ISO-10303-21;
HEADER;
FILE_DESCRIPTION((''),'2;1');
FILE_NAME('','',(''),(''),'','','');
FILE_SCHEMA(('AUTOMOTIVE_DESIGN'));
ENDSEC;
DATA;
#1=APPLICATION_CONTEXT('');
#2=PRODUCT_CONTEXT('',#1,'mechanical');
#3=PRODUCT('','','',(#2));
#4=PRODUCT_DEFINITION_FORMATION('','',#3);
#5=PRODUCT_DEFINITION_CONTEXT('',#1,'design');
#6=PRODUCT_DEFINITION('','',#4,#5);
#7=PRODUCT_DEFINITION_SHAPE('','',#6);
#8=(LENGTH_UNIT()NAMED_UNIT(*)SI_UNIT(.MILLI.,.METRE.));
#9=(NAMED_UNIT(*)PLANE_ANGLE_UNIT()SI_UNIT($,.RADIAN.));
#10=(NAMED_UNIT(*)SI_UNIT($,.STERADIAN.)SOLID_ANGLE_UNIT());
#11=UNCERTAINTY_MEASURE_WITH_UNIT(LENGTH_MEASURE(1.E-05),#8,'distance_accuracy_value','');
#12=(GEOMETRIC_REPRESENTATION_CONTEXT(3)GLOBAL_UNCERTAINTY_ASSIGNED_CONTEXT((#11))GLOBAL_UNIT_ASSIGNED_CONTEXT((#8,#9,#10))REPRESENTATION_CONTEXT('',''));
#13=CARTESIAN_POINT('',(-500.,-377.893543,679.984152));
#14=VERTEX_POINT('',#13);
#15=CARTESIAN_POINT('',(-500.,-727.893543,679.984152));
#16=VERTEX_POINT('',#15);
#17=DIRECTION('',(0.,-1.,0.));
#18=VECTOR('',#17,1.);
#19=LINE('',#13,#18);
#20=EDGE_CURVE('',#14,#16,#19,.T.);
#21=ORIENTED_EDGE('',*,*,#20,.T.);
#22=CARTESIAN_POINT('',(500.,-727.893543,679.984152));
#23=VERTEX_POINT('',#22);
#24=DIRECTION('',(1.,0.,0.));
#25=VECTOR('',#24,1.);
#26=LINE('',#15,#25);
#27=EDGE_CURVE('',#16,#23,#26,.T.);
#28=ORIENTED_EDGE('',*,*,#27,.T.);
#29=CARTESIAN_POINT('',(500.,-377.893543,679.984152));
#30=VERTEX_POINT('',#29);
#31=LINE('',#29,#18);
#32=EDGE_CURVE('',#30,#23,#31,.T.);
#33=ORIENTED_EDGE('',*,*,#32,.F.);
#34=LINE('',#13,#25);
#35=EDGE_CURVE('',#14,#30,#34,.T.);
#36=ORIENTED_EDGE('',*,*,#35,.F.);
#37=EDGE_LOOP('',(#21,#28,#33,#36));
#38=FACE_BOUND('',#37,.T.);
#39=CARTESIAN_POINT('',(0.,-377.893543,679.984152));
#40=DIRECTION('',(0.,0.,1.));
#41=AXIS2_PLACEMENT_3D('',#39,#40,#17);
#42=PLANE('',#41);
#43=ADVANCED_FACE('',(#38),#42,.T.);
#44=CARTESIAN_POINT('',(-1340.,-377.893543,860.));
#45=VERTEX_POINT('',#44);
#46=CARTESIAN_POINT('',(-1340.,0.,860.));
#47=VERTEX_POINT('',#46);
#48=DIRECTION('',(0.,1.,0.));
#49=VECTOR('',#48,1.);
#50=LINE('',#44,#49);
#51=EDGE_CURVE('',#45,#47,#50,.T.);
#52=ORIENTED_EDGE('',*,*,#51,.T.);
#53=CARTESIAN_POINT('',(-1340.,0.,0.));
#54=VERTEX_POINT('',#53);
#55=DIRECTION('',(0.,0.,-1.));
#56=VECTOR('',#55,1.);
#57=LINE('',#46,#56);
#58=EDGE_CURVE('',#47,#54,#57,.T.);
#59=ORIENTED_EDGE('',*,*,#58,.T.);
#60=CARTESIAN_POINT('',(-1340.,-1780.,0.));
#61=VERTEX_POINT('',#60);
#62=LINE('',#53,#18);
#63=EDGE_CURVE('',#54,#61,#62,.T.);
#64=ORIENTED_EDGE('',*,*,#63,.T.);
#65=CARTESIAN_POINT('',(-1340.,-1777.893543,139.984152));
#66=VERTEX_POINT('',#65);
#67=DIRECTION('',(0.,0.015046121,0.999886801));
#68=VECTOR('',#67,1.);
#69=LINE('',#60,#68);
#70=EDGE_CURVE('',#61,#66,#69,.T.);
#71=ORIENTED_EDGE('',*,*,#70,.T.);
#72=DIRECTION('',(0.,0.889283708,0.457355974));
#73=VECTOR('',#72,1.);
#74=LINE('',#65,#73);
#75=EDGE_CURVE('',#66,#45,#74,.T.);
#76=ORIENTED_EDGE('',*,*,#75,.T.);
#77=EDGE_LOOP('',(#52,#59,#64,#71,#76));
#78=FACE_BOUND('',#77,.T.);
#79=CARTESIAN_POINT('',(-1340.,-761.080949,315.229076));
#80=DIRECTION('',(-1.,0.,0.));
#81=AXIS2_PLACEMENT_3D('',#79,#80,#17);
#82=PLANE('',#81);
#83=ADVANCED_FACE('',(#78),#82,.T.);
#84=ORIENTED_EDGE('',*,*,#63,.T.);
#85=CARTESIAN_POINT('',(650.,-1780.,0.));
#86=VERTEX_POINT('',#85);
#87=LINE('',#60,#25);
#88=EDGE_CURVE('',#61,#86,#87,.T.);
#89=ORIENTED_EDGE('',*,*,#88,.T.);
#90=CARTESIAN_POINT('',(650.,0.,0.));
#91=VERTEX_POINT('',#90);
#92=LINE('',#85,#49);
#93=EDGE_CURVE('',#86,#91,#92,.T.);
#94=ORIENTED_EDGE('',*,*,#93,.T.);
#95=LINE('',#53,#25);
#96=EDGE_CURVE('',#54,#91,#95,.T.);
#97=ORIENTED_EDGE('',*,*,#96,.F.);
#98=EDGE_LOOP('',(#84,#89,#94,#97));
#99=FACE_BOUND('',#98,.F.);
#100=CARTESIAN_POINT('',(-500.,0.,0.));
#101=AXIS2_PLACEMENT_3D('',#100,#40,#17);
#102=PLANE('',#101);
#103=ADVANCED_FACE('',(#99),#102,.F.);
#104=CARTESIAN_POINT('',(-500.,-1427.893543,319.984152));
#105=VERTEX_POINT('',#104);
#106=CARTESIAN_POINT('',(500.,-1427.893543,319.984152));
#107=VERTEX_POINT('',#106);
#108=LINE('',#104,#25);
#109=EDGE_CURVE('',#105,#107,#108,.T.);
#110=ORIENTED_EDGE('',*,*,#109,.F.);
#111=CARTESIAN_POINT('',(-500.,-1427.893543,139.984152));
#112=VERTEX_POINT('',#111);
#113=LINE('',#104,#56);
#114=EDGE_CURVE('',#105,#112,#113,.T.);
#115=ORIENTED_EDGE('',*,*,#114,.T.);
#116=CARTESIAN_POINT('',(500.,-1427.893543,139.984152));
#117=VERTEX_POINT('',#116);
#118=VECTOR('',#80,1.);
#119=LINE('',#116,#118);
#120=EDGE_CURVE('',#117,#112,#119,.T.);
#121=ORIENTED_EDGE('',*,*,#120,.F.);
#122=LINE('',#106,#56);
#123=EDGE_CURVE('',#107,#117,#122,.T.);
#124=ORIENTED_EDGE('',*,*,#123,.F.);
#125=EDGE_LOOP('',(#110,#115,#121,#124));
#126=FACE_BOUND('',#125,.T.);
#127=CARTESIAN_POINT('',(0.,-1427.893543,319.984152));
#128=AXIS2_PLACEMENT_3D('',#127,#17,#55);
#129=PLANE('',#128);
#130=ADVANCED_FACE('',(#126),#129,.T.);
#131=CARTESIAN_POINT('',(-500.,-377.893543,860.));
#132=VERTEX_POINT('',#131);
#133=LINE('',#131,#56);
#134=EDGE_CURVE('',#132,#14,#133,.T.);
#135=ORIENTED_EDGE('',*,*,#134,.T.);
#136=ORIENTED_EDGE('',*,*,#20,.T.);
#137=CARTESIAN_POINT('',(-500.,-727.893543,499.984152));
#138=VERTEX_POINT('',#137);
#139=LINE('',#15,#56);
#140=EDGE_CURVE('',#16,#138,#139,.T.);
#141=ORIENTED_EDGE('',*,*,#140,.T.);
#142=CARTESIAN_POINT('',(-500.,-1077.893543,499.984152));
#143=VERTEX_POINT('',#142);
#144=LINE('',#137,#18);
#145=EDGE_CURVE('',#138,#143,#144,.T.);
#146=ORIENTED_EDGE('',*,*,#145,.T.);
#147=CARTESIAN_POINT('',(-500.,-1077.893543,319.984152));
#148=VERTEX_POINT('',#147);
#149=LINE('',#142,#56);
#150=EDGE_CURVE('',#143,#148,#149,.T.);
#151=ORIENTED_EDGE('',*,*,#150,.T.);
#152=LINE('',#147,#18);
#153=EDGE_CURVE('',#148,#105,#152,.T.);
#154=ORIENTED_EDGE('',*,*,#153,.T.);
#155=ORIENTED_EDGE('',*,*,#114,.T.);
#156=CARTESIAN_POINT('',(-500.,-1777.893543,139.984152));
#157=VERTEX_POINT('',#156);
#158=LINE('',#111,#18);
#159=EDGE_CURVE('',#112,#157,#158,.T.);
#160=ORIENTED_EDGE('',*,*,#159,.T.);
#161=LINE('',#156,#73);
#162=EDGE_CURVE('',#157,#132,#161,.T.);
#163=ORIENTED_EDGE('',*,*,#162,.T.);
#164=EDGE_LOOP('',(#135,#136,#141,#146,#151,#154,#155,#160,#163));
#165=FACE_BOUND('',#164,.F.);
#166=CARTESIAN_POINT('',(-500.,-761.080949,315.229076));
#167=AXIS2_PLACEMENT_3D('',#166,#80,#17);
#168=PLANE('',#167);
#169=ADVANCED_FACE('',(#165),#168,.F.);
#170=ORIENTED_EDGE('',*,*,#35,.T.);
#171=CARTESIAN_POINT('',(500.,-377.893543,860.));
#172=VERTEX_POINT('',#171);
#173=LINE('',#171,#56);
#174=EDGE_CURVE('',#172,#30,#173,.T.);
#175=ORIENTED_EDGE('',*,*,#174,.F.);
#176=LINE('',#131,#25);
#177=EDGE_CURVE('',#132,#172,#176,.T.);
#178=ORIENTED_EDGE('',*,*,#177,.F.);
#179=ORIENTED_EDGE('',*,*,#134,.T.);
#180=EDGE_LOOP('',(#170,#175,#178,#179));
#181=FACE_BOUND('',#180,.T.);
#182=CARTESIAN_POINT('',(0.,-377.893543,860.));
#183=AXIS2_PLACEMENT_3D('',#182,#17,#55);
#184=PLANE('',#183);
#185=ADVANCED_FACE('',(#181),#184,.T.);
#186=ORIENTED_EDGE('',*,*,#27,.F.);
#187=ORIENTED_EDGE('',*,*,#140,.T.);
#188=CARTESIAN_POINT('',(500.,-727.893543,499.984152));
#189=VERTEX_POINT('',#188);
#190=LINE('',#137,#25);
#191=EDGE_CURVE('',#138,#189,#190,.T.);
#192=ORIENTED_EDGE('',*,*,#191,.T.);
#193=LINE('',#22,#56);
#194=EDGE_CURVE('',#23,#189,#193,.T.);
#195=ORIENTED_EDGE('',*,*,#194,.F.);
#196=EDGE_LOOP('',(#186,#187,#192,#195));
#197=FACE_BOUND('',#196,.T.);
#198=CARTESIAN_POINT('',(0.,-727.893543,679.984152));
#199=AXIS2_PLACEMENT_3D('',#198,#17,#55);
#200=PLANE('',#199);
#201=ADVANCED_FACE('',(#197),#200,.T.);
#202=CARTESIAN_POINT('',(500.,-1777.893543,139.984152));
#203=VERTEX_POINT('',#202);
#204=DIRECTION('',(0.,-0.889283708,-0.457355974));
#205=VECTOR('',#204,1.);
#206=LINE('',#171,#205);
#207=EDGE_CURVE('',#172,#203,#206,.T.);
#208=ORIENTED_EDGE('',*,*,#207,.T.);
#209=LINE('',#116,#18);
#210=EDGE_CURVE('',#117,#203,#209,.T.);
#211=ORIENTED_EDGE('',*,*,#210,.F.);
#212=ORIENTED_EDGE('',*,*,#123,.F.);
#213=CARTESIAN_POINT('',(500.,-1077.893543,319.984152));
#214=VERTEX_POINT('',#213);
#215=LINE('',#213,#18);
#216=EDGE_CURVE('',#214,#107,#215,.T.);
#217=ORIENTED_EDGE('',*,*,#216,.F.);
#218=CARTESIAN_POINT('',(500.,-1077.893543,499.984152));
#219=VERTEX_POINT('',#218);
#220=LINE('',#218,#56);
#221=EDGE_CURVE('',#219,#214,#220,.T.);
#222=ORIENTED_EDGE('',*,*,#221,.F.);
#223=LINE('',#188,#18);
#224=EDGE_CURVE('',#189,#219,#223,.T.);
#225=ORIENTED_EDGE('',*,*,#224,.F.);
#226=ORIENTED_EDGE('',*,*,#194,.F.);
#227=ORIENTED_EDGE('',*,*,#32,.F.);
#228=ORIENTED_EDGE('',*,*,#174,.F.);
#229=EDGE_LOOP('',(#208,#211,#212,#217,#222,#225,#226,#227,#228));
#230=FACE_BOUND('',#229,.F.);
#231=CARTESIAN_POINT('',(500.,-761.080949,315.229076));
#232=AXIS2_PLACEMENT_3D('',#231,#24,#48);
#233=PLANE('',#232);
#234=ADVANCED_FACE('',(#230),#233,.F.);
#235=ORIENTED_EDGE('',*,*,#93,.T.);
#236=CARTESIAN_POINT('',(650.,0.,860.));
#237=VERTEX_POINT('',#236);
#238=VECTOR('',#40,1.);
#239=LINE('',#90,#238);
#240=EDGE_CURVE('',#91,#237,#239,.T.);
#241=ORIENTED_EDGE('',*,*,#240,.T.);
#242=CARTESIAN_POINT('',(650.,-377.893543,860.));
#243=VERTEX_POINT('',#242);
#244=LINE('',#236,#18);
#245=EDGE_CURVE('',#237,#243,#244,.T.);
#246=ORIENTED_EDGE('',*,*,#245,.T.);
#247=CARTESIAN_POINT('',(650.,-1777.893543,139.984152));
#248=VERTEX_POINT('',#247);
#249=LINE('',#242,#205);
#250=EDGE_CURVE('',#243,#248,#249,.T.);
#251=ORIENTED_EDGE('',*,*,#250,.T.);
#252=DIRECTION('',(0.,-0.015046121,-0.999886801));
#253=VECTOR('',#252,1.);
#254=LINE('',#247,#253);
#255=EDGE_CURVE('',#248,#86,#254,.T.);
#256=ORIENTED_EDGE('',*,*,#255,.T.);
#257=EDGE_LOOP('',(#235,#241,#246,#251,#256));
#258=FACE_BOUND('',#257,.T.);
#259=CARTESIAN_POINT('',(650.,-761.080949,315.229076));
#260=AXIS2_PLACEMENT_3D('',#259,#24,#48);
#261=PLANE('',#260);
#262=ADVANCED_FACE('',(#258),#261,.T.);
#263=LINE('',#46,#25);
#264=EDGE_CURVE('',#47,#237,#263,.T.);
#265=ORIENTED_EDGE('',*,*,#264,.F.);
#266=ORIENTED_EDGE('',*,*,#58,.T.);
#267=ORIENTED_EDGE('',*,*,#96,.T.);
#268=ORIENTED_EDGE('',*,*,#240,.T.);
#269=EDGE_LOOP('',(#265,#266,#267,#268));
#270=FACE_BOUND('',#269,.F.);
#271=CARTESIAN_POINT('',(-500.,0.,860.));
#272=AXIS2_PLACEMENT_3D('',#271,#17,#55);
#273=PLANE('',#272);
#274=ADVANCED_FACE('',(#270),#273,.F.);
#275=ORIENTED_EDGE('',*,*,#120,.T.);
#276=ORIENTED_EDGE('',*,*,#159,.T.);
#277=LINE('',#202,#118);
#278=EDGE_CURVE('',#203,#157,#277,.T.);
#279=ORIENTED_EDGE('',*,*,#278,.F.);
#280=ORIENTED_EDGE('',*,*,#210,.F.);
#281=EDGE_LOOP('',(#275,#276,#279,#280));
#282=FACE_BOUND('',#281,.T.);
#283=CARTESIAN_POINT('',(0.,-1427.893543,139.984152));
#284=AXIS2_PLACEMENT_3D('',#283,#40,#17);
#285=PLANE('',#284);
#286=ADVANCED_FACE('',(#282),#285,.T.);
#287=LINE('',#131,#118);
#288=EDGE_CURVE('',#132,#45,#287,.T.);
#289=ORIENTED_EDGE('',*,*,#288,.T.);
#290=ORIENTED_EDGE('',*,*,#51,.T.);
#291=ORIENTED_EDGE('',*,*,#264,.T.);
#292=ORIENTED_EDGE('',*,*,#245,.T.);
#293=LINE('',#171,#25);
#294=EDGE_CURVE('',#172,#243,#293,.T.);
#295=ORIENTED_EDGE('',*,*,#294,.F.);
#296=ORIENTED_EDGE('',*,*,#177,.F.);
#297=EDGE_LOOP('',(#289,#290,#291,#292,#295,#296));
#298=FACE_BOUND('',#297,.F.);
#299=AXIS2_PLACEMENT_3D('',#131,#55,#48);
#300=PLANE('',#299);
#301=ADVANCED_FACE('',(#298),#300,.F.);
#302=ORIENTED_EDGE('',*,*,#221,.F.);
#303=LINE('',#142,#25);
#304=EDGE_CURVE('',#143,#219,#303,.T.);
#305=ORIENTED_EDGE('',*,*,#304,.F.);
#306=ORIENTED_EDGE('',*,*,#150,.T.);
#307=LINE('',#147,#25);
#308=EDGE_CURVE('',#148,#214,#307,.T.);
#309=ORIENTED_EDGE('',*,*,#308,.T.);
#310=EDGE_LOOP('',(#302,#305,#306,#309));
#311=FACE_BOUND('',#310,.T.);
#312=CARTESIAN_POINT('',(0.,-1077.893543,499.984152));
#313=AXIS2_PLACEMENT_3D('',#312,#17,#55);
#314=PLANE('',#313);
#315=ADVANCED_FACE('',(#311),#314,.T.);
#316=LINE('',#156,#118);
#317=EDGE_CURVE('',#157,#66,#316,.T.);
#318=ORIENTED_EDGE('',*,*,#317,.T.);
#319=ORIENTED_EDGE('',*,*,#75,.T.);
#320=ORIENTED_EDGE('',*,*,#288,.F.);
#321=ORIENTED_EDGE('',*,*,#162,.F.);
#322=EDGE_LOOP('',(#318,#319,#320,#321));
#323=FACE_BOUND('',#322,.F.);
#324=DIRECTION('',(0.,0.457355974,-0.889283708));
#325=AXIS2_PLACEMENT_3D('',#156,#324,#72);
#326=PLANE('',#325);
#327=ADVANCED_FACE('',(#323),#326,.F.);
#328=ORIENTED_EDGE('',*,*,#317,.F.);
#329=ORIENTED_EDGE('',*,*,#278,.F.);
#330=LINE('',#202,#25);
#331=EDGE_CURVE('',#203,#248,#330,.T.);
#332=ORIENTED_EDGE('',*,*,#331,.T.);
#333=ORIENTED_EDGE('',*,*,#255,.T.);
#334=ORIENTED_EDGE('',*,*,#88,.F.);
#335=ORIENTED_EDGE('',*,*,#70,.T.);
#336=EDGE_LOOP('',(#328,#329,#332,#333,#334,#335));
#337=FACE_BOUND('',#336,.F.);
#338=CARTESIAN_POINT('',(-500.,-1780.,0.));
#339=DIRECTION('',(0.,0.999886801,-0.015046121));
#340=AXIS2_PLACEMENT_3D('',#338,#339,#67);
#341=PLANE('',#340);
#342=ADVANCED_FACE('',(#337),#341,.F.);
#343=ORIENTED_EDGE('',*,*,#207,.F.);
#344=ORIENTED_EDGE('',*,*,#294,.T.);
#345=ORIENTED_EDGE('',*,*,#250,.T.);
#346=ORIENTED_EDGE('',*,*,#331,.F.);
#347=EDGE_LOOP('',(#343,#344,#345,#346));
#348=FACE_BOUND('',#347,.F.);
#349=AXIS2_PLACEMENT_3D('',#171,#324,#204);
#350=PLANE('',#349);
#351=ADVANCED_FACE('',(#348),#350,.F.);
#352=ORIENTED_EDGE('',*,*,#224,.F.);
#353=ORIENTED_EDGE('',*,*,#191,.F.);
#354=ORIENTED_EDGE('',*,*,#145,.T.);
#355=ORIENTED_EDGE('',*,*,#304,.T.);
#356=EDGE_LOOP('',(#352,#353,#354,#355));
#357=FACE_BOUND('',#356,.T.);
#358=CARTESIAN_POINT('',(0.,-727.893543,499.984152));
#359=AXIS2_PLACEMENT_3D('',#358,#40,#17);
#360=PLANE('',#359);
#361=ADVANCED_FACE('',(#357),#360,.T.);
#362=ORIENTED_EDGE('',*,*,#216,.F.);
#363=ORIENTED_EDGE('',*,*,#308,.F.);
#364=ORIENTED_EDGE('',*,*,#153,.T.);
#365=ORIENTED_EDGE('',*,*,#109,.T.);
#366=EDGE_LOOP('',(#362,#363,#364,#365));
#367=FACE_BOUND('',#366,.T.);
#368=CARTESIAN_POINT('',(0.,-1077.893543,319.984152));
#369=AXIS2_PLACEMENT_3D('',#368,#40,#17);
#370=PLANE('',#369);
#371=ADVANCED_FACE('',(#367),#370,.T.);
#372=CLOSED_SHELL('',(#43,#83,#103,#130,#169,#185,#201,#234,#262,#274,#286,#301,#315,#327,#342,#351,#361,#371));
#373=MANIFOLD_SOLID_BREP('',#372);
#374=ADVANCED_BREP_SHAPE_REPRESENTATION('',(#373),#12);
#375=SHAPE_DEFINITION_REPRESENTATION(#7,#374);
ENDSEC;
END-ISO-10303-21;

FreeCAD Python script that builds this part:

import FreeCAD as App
import Part
import Sketcher

V = App.Vector
Q = App.Units.Quantity

doc = App.newDocument("Part")
body = doc.addObject("PartDesign::Body", "Body")

# Sketch on YZ plane
sketch1 = body.newObject("Sketcher::SketchObject", "Sketch")
sketch1.AttachmentSupport = (doc.getObject("YZ_Plane"), [""])
sketch1.MapMode = "FlatFace"
sketch1.addGeometry(Part.LineSegment(V(-1780, 0, 0), V(0, 0, 0)), False)
sketch1.addGeometry(Part.LineSegment(V(0, 0, 0), V(0, 860, 0)), False)
sketch1.addGeometry(Part.LineSegment(V(0, 860, 0), V(-378, 860, 0)), False)
sketch1.addGeometry(Part.LineSegment(V(-378, 860, 0), V(-378, 680, 0)), False)
sketch1.addGeometry(Part.LineSegment(V(-378, 680, 0), V(-728, 680, 0)), False)
sketch1.addGeometry(Part.LineSegment(V(-728, 680, 0), V(-728, 500, 0)), False)
sketch1.addGeometry(Part.LineSegment(V(-728, 500, 0), V(-1078, 500, 0)), False)
sketch1.addGeometry(Part.LineSegment(V(-1078, 500, 0), V(-1078, 320, 0)), False)
sketch1.addGeometry(Part.LineSegment(V(-1078, 320, 0), V(-1428, 320, 0)), False)
sketch1.addGeometry(Part.LineSegment(V(-1428, 320, 0), V(-1428, 140, 0)), False)
sketch1.addGeometry(Part.LineSegment(V(-1428, 140, 0), V(-1778, 140, 0)), False)
sketch1.addGeometry(Part.LineSegment(V(-1778, 140, 0), V(-1780, 0, 0)), False)
sketch1.addConstraint(Sketcher.Constraint("Coincident", 0, 2, 1, 1))
sketch1.addConstraint(Sketcher.Constraint("Coincident", 1, 2, 2, 1))
sketch1.addConstraint(Sketcher.Constraint("Coincident", 2, 2, 3, 1))
sketch1.addConstraint(Sketcher.Constraint("Coincident", 3, 2, 4, 1))
sketch1.addConstraint(Sketcher.Constraint("Coincident", 4, 2, 5, 1))
sketch1.addConstraint(Sketcher.Constraint("Coincident", 5, 2, 6, 1))
sketch1.addConstraint(Sketcher.Constraint("Coincident", 6, 2, 7, 1))
sketch1.addConstraint(Sketcher.Constraint("Coincident", 7, 2, 8, 1))
sketch1.addConstraint(Sketcher.Constraint("Coincident", 8, 2, 9, 1))
sketch1.addConstraint(Sketcher.Constraint("Coincident", 9, 2, 10, 1))
sketch1.addConstraint(Sketcher.Constraint("Coincident", 10, 2, 11, 1))
sketch1.addConstraint(Sketcher.Constraint("Coincident", 11, 2, 0, 1))
sketch1.addConstraint(Sketcher.Constraint("Horizontal", 0))
sketch1.addConstraint(Sketcher.Constraint("Vertical", 1))
sketch1.addConstraint(Sketcher.Constraint("Horizontal", 2))
sketch1.addConstraint(Sketcher.Constraint("Vertical", 3))
sketch1.addConstraint(Sketcher.Constraint("Horizontal", 4))
sketch1.addConstraint(Sketcher.Constraint("Vertical", 5))
sketch1.addConstraint(Sketcher.Constraint("Horizontal", 6))
sketch1.addConstraint(Sketcher.Constraint("Vertical", 7))
sketch1.addConstraint(Sketcher.Constraint("Horizontal", 8))
sketch1.addConstraint(Sketcher.Constraint("Vertical", 9))
sketch1.addConstraint(Sketcher.Constraint("Horizontal", 10))
sketch1.addConstraint(Sketcher.Constraint("Coincident", 0, 2, -1, 1))
sketch1.addConstraint(Sketcher.Constraint("Equal", 4, 6))
sketch1.addConstraint(Sketcher.Constraint("Equal", 6, 8))
sketch1.addConstraint(Sketcher.Constraint("Equal", 8, 10))
sketch1.addConstraint(Sketcher.Constraint("Equal", 5, 7))
sketch1.addConstraint(Sketcher.Constraint("Equal", 7, 9))
sketch1.addConstraint(Sketcher.Constraint("DistanceX", 0, 1, 0, 2, Q("1780 mm")))
sketch1.addConstraint(Sketcher.Constraint("DistanceX", 4, 2, 4, 1, Q("350 mm")))
sketch1.addConstraint(Sketcher.Constraint("DistanceY", 1, 1, 1, 2, Q("860 mm")))
sketch1.addConstraint(Sketcher.Constraint("DistanceY", 5, 2, 5, 1, Q("180 mm")))
sketch1.addConstraint(Sketcher.Constraint("Distance", 11, Q("140 mm")))
sketch1.addConstraint(Sketcher.Constraint("DistanceY", 3, 2, 3, 1, Q("180.015848 mm")))
pad1 = body.newObject("PartDesign::Pad", "Pad")
pad1.Profile = sketch1
pad1.Type = "TwoLengths"
pad1.Length = 500
pad1.Length2 = 500

# Sketch on YZ plane
sketch2 = body.newObject("Sketcher::SketchObject", "Sketch001")
sketch2.AttachmentSupport = (doc.getObject("YZ_Plane"), [""])
sketch2.MapMode = "FlatFace"
sketch2.AttachmentOffset = App.Placement(V(0, 0, 500), App.Rotation())
sketch2.addGeometry(Part.LineSegment(V(0, 860, 0), V(-377.893543, 860, 0)), False)
sketch2.addGeometry(Part.LineSegment(V(-377.893543, 860, 0), V(-1777.893543, 139.984152, 0)), False)
sketch2.addGeometry(Part.LineSegment(V(-1777.893543, 139.984152, 0), V(-1780, 0, 0)), False)
sketch2.addGeometry(Part.LineSegment(V(-1780, 0, 0), V(0, 0, 0)), False)
sketch2.addGeometry(Part.LineSegment(V(0, 0, 0), V(0, 860, 0)), False)
sketch2.addConstraint(Sketcher.Constraint("Coincident", 0, 2, 1, 1))
sketch2.addConstraint(Sketcher.Constraint("Coincident", 1, 2, 2, 1))
sketch2.addConstraint(Sketcher.Constraint("Coincident", 2, 2, 3, 1))
sketch2.addConstraint(Sketcher.Constraint("Coincident", 3, 2, 4, 1))
sketch2.addConstraint(Sketcher.Constraint("Coincident", 4, 2, 0, 1))
sketch2.addConstraint(Sketcher.Constraint("Horizontal", 0))
sketch2.addConstraint(Sketcher.Constraint("Horizontal", 3))
sketch2.addConstraint(Sketcher.Constraint("Vertical", 4))
sketch2.addConstraint(Sketcher.Constraint("Coincident", 3, 2, -1, 1))
sketch2.addConstraint(Sketcher.Constraint("DistanceX", 3, 1, 3, 2, Q("1780 mm")))
sketch2.addConstraint(Sketcher.Constraint("DistanceY", 4, 1, 4, 2, Q("860 mm")))
sketch2.addConstraint(Sketcher.Constraint("Distance", 2, Q("140 mm")))
sketch2.addConstraint(Sketcher.Constraint("DistanceX", 1, 2, 0, 2, Q("1400 mm")))
sketch2.addConstraint(Sketcher.Constraint("Distance", 1, Q("1574.30074 mm")))
pad2 = body.newObject("PartDesign::Pad", "Pad001")
pad2.Profile = sketch2
pad2.Length = 150

# Sketch on YZ plane
sketch3 = body.newObject("Sketcher::SketchObject", "Sketch002")
sketch3.AttachmentSupport = (doc.getObject("YZ_Plane"), [""])
sketch3.MapMode = "FlatFace"
sketch3.AttachmentOffset = App.Placement(V(0, 0, -500), App.Rotation())
sketch3.addGeometry(Part.LineSegment(V(-1780, 0, 0), V(-1777.893543, 139.984152, 0)), False)
sketch3.addGeometry(Part.LineSegment(V(-1777.893543, 139.984152, 0), V(-377.893543, 860, 0)), False)
sketch3.addGeometry(Part.LineSegment(V(-377.893543, 860, 0), V(0, 860, 0)), False)
sketch3.addGeometry(Part.LineSegment(V(0, 860, 0), V(0, 0, 0)), False)
sketch3.addGeometry(Part.LineSegment(V(0, 0, 0), V(-1780, 0, 0)), False)
sketch3.addConstraint(Sketcher.Constraint("Coincident", 0, 2, 1, 1))
sketch3.addConstraint(Sketcher.Constraint("Coincident", 1, 2, 2, 1))
sketch3.addConstraint(Sketcher.Constraint("Coincident", 2, 2, 3, 1))
sketch3.addConstraint(Sketcher.Constraint("Coincident", 3, 2, 4, 1))
sketch3.addConstraint(Sketcher.Constraint("Coincident", 4, 2, 0, 1))
sketch3.addConstraint(Sketcher.Constraint("Horizontal", 2))
sketch3.addConstraint(Sketcher.Constraint("Vertical", 3))
sketch3.addConstraint(Sketcher.Constraint("Horizontal", 4))
sketch3.addConstraint(Sketcher.Constraint("Coincident", 3, 2, -1, 1))
sketch3.addConstraint(Sketcher.Constraint("DistanceX", 4, 2, 4, 1, Q("1780 mm")))
sketch3.addConstraint(Sketcher.Constraint("DistanceY", 3, 2, 3, 1, Q("860 mm")))
sketch3.addConstraint(Sketcher.Constraint("Distance", 0, Q("140 mm")))
sketch3.addConstraint(Sketcher.Constraint("DistanceX", 0, 2, 1, 2, Q("1400 mm")))
sketch3.addConstraint(Sketcher.Constraint("Distance", 1, Q("1574.30074 mm")))
pad3 = body.newObject("PartDesign::Pad", "Pad002")
pad3.Profile = sketch3
pad3.Length = 840
pad3.Reversed = True

doc.recompute()
